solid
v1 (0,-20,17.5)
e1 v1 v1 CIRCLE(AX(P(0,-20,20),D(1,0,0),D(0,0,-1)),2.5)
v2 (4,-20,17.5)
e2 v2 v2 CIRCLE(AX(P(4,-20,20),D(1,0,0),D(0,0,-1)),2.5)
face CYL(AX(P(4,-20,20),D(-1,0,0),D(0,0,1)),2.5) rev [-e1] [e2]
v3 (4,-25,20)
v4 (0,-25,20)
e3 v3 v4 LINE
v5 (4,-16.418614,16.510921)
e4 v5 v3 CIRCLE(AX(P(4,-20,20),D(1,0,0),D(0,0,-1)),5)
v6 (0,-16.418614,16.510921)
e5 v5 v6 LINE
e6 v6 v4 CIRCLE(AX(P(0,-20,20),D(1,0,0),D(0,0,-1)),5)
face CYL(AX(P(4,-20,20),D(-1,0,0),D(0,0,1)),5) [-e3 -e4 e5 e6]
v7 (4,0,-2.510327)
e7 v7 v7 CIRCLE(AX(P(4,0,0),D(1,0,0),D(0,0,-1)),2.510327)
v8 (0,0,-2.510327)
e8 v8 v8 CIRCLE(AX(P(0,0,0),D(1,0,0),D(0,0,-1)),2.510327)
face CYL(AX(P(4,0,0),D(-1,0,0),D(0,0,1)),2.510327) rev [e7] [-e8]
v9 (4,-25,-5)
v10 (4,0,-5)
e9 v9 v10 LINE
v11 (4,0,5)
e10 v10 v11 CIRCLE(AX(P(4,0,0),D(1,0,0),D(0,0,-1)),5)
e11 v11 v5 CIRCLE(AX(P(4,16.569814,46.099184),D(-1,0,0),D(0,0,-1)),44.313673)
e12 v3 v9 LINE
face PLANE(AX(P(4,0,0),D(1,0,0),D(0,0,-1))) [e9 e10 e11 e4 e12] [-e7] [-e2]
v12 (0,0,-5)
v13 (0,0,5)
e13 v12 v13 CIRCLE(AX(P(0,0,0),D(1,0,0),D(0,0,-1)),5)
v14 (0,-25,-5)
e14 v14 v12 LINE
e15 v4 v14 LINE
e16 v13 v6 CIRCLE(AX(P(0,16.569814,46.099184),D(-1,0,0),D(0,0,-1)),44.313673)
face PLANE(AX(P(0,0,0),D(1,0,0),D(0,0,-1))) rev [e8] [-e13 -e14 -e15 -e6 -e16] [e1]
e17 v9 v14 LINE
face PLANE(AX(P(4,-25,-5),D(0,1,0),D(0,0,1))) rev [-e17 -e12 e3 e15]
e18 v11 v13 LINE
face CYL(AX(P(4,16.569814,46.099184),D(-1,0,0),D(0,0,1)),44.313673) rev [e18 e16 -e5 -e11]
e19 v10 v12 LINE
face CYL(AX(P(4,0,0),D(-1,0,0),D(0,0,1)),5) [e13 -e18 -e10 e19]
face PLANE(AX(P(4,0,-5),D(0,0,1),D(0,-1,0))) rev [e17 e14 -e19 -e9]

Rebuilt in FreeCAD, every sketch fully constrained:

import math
import FreeCAD as App
import Part
import Sketcher
from FreeCAD import Vector
Q = App.Units.Quantity

doc = App.newDocument("Part")
params = doc.addObject("Spreadsheet::Sheet", "Params")
for row, (alias, value) in enumerate([
    ("sketch1_diameter", "5 mm"),
    ("sketch1_radius", "5 mm"),
    ("sketch1_width", "25 mm"),
    ("pad1_length", "4 mm"),
], start=1):
    params.set(f"A{row}", alias)
    params.set(f"B{row}", "=" + value)
    params.setAlias(f"B{row}", alias)

body = doc.addObject("PartDesign::Body", "Body")

sketch1 = doc.addObject("Sketcher::SketchObject", "Sketch")
body.addObject(sketch1)
sketch1.AttachmentSupport = (doc.YZ_Plane, [""])
sketch1.MapMode = "FlatFace"
sketch1.addGeometry([
    Part.LineSegment(Vector(-25, -5, 0), Vector(0, -5, 0)),
    Part.ArcOfCircle(Part.Circle(Vector(0, 0, 0), Vector(0, 0, 1), 5), math.radians(-90), math.radians(90)),
    Part.ArcOfCircle(Part.Circle(Vector(16.6, 46.1, 0), Vector(0, 0, 1), 44.3), math.radians(-138), math.radians(-112)),
    Part.ArcOfCircle(Part.Circle(Vector(-20, 20, 0), Vector(0, 0, 1), 5), math.radians(-44), math.radians(180)),
    Part.LineSegment(Vector(-25, 20, 0), Vector(-25, -5, 0)),
    Part.Circle(Vector(-20, 20, 0), Vector(0, 0, 1), 2.5),
    Part.Circle(Vector(0, 0, 0), Vector(0, 0, 1), 2.5),
], False)
sketch1.addConstraint([
    Sketcher.Constraint("Tangent", 0, 2, 1, 1),
    Sketcher.Constraint("Coincident", 1, 2, 2, 2),
    Sketcher.Constraint("Coincident", 2, 1, 3, 1),
    Sketcher.Constraint("Tangent", 3, 2, 4, 1),
    Sketcher.Constraint("Coincident", 4, 2, 0, 1),
    Sketcher.Constraint("Horizontal", 0),
    Sketcher.Constraint("Vertical", 4),
    Sketcher.Constraint("Coincident", 1, 3, -1, 1),
    Sketcher.Constraint("Coincident", 6, 3, -1, 1),
    Sketcher.Constraint("Coincident", 5, 3, 3, 3),
    Sketcher.Constraint("Equal", 1, 3),
    Sketcher.Constraint("PointOnObject", 1, 2, -2),
    Sketcher.Constraint("Equal", 0, 4),
    Sketcher.Constraint("Diameter", 5, Q("5 mm")),
    Sketcher.Constraint("Radius", 1, Q("5 mm")),
    Sketcher.Constraint("DistanceX", 0, 1, 0, 2, Q("25 mm")),
    Sketcher.Constraint("Diameter", 6, Q("5.020653 mm")),
    Sketcher.Constraint("Radius", 2, Q("44.313673 mm")),
    Sketcher.Constraint("DistanceY", -1, 1, 2, 1, Q("16.510921 mm")),
])
sketch1.setExpression("Constraints[13]", "Params.sketch1_diameter")
sketch1.setExpression("Constraints[14]", "Params.sketch1_radius")
sketch1.setExpression("Constraints[15]", "Params.sketch1_width")
pad1 = doc.addObject("PartDesign::Pad", "Pad")
body.addObject(pad1)
pad1.Profile = sketch1
pad1.setExpression("Length", "Params.pad1_length")

doc.recompute()
